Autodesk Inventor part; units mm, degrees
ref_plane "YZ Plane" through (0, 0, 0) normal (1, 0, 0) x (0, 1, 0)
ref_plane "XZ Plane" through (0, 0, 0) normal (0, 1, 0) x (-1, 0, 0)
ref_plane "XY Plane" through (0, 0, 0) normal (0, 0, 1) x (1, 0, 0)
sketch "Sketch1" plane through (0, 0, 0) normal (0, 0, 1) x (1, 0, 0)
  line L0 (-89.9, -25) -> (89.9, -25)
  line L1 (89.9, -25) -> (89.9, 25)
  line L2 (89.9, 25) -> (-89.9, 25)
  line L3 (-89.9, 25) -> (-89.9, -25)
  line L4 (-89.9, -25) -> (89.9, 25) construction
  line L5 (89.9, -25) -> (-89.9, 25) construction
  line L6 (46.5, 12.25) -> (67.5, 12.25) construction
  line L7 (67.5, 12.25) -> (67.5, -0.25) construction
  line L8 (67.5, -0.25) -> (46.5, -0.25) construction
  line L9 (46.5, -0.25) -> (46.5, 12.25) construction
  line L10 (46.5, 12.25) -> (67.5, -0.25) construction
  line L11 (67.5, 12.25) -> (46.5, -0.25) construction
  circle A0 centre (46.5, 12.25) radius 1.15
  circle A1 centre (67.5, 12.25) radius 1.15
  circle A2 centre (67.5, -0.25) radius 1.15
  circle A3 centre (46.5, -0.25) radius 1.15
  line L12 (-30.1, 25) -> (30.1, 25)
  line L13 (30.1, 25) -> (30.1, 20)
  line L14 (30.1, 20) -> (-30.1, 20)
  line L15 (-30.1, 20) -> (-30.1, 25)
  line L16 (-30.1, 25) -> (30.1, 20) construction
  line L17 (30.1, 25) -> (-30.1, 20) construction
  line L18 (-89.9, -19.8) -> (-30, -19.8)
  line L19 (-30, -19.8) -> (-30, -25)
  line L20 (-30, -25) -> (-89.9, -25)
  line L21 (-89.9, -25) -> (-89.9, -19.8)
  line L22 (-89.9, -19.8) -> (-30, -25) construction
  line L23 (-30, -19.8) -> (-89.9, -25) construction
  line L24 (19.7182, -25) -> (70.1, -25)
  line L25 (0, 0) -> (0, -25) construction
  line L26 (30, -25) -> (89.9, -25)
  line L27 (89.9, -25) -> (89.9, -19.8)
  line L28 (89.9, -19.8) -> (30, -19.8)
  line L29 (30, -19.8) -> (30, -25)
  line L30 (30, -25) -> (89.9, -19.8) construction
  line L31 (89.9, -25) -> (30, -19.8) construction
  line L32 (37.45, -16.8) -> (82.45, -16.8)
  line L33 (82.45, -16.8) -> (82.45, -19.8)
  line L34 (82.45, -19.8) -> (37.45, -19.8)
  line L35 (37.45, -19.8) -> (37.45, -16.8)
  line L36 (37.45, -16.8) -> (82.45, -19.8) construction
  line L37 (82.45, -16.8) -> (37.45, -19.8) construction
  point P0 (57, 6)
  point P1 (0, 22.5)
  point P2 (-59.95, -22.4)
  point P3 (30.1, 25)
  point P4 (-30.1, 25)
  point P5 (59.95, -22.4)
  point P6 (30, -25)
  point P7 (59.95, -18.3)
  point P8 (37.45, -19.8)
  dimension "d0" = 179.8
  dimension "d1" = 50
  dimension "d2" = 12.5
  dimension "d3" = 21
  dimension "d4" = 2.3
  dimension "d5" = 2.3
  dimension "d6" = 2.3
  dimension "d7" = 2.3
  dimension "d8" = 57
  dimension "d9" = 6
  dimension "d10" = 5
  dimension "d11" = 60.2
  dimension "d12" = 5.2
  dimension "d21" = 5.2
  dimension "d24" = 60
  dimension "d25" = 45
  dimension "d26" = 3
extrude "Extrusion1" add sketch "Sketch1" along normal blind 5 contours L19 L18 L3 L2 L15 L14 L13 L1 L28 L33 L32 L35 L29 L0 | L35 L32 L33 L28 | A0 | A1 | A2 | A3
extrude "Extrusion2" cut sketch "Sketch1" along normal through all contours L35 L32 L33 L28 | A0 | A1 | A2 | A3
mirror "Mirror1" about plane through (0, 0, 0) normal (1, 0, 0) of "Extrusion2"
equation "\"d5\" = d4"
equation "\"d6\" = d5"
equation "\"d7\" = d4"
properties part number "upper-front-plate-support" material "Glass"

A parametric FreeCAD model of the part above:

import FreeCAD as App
import Part
import Sketcher
from FreeCAD import Vector
Q = App.Units.Quantity


def add_polygon(sketch, points):
    """Adds a closed chain of lines whose ends are joined by coincident constraints."""
    first, n = sketch.GeometryCount, len(points)
    for a, b in zip(points, points[1:] + points[:1]):
        sketch.addGeometry(Part.LineSegment(App.Vector(*a, 0), App.Vector(*b, 0)), False)
    for i in range(n):
        sketch.addConstraint(Sketcher.Constraint("Coincident", first + i, 2, first + (i + 1) % n, 1))

doc = App.newDocument("Part")
body = doc.addObject("PartDesign::Body", "Body")

sketch1 = body.newObject("Sketcher::SketchObject", "Sketch")
sketch1.AttachmentSupport = (doc.getObject("XY_Plane"), [""])
sketch1.MapMode = "FlatFace"
add_polygon(sketch1, [(-30, -19.8), (-30, -25), (30, -25), (30, -19.8), (89.9, -19.8), (89.9, 25), (30.1, 25), (30.1, 20), (-30.1, 20), (-30.1, 25), (-89.9, 25), (-89.9, -19.8)])
sketch1.addConstraint(Sketcher.Constraint("Vertical", 0))
sketch1.addConstraint(Sketcher.Constraint("Horizontal", 1))
sketch1.addConstraint(Sketcher.Constraint("Vertical", 2))
sketch1.addConstraint(Sketcher.Constraint("Horizontal", 3))
sketch1.addConstraint(Sketcher.Constraint("Vertical", 4))
sketch1.addConstraint(Sketcher.Constraint("Horizontal", 5))
sketch1.addConstraint(Sketcher.Constraint("Vertical", 6))
sketch1.addConstraint(Sketcher.Constraint("Horizontal", 7))
sketch1.addConstraint(Sketcher.Constraint("Vertical", 8))
sketch1.addConstraint(Sketcher.Constraint("Horizontal", 9))
sketch1.addConstraint(Sketcher.Constraint("Vertical", 10))
sketch1.addConstraint(Sketcher.Constraint("Horizontal", 11))
sketch1.addConstraint(Sketcher.Constraint("Symmetric", 5, 2, 8, 2, -2))
sketch1.addConstraint(Sketcher.Constraint("Symmetric", 3, 2, 10, 2, -2))
sketch1.addConstraint(Sketcher.Constraint("Equal", 3, 11))
sketch1.addConstraint(Sketcher.Constraint("DistanceX", 1, 1, 1, 2, Q("60 mm")))
sketch1.addConstraint(Sketcher.Constraint("DistanceY", 6, 2, 6, 1, Q("5 mm")))
sketch1.addConstraint(Sketcher.Constraint("DistanceX", 7, 2, 7, 1, Q("60.2 mm")))
sketch1.addConstraint(Sketcher.Constraint("DistanceY", 0, 2, 0, 1, Q("5.2 mm")))
sketch1.addConstraint(Sketcher.Constraint("DistanceY", 1, 2, 4, 2, Q("50 mm")))
sketch1.addConstraint(Sketcher.Constraint("DistanceX", 3, 1, 3, 2, Q("59.9 mm")))
sketch1.addConstraint(Sketcher.Constraint("DistanceY", 0, 2, -1, 1, Q("25 mm")))
pad1 = body.newObject("PartDesign::Pad", "Pad")
pad1.Profile = sketch1
pad1.Length = 5

sketch2 = body.newObject("Sketcher::SketchObject", "Sketch001")
sketch2.AttachmentSupport = (doc.getObject("XY_Plane"), [""])
sketch2.MapMode = "FlatFace"
add_polygon(sketch2, [(37.45, -16.8), (37.45, -19.8), (82.45, -19.8), (82.45, -16.8)])
sketch2.addGeometry(Part.Circle(Vector(46.5, 12.25, 0), Vector(0, 0, 1), 1.15), False)
sketch2.addGeometry(Part.Circle(Vector(67.5, 12.25, 0), Vector(0, 0, 1), 1.15), False)
sketch2.addGeometry(Part.Circle(Vector(67.5, -0.25, 0), Vector(0, 0, 1), 1.15), False)
sketch2.addGeometry(Part.Circle(Vector(46.5, -0.25, 0), Vector(0, 0, 1), 1.15), False)
sketch2.addConstraint(Sketcher.Constraint("Vertical", 0))
sketch2.addConstraint(Sketcher.Constraint("Horizontal", 1))
sketch2.addConstraint(Sketcher.Constraint("Vertical", 2))
sketch2.addConstraint(Sketcher.Constraint("Horizontal", 3))
sketch2.addConstraint(Sketcher.Constraint("Equal", 4, 5))
sketch2.addConstraint(Sketcher.Constraint("Equal", 5, 6))
sketch2.addConstraint(Sketcher.Constraint("Equal", 6, 7))
sketch2.addConstraint(Sketcher.Constraint("Horizontal", 4, 3, 5, 3))
sketch2.addConstraint(Sketcher.Constraint("Horizontal", 6, 3, 7, 3))
sketch2.addConstraint(Sketcher.Constraint("Vertical", 5, 3, 6, 3))
sketch2.addConstraint(Sketcher.Constraint("Vertical", 4, 3, 7, 3))
sketch2.addConstraint(Sketcher.Constraint("Diameter", 4, Q("2.3 mm")))
sketch2.addConstraint(Sketcher.Constraint("DistanceX", 1, 1, 1, 2, Q("45 mm")))
sketch2.addConstraint(Sketcher.Constraint("DistanceY", 0, 2, 0, 1, Q("3 mm")))
sketch2.addConstraint(Sketcher.Constraint("DistanceX", 4, 3, 5, 3, Q("21 mm")))
sketch2.addConstraint(Sketcher.Constraint("DistanceY", 6, 3, 5, 3, Q("12.5 mm")))
sketch2.addConstraint(Sketcher.Constraint("DistanceX", -1, 1, 4, 3, Q("46.5 mm")))
sketch2.addConstraint(Sketcher.Constraint("DistanceY", 0, 2, -1, 1, Q("19.8 mm")))
sketch2.addConstraint(Sketcher.Constraint("DistanceY", -1, 1, 4, 3, Q("12.25 mm")))
sketch2.addConstraint(Sketcher.Constraint("DistanceX", -1, 1, 0, 2, Q("37.45 mm")))
pocket1 = body.newObject("PartDesign::Pocket", "Pocket")
pocket1.Profile = sketch2
pocket1.Type = "ThroughAll"
pocket1.Reversed = True
doc.recompute()

mirrored = body.newObject("PartDesign::Mirrored", "Mirrored")
mirrored.Originals = [pocket1]
mirrored.MirrorPlane = (doc.getObject("YZ_Plane"), [""])
body.Tip = mirrored

doc.recompute()
